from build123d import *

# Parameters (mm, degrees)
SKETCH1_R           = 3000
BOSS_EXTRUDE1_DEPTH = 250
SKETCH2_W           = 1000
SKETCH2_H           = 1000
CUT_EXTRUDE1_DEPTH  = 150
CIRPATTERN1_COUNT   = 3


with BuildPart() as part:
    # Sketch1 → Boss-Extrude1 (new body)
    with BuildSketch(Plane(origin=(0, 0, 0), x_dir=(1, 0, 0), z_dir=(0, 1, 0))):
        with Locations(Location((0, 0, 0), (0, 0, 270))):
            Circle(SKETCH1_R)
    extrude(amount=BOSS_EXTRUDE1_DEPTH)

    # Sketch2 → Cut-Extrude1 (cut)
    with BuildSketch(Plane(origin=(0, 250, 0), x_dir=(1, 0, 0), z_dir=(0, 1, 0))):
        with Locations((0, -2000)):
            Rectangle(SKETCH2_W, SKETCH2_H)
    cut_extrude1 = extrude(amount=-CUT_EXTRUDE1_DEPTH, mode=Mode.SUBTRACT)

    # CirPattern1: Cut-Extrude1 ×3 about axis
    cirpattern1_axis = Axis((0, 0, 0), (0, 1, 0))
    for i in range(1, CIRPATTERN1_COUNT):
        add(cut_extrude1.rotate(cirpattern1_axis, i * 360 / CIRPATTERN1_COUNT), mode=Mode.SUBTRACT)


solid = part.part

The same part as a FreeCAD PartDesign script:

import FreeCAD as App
import Part
import Sketcher
Q = App.Units.Quantity


def add_polygon(sketch, points):
    """Adds a closed chain of lines whose ends are joined by coincident constraints."""
    first, n = sketch.GeometryCount, len(points)
    for a, b in zip(points, points[1:] + points[:1]):
        sketch.addGeometry(Part.LineSegment(App.Vector(*a, 0), App.Vector(*b, 0)), False)
    for i in range(n):
        sketch.addConstraint(Sketcher.Constraint("Coincident", first + i, 2, first + (i + 1) % n, 1))

doc = App.newDocument("Part")
body = doc.addObject("PartDesign::Body", "Body")

sketch1 = doc.addObject("Sketcher::SketchObject", "Sketch")
body.addObject(sketch1)
sketch1.AttachmentSupport = (doc.XZ_Plane, [""])
sketch1.MapMode = "FlatFace"
sketch1.addGeometry(Part.Circle(App.Vector(0, 0, 0), App.Vector(0, 0, 1), 3000), False)
sketch1.addConstraint(Sketcher.Constraint("Coincident", 0, 3, -1, 1))
sketch1.addConstraint(Sketcher.Constraint("Diameter", 0, Q("6000 mm")))
pad1 = doc.addObject("PartDesign::Pad", "Pad")
body.addObject(pad1)
pad1.Profile = sketch1
pad1.Length = 250
pad1.Reversed = True

sketch2 = doc.addObject("Sketcher::SketchObject", "Sketch001")
body.addObject(sketch2)
sketch2.AttachmentSupport = (doc.XZ_Plane, [""])
sketch2.MapMode = "FlatFace"
sketch2.AttachmentOffset = App.Placement(App.Vector(0, 0, -250), App.Rotation())
add_polygon(sketch2, [(-500, 1500), (-500, 2500), (500, 2500), (500, 1500)])
sketch2.addConstraint(Sketcher.Constraint("Vertical", 0))
sketch2.addConstraint(Sketcher.Constraint("Horizontal", 1))
sketch2.addConstraint(Sketcher.Constraint("Vertical", 2))
sketch2.addConstraint(Sketcher.Constraint("Horizontal", 3))
sketch2.addConstraint(Sketcher.Constraint("Equal", 3, 0))
sketch2.addConstraint(Sketcher.Constraint("DistanceX", 1, 1, 1, 2, Q("1000 mm")))
sketch2.addConstraint(Sketcher.Constraint("DistanceX", 0, 2, -1, 1, Q("500 mm")))
sketch2.addConstraint(Sketcher.Constraint("DistanceY", -1, 1, 0, 2, Q("2500 mm")))
pocket1 = doc.addObject("PartDesign::Pocket", "Pocket")
body.addObject(pocket1)
pocket1.Profile = sketch2
pocket1.Length = 150
pocket1.Reversed = True
doc.recompute()

polarpattern = doc.addObject("PartDesign::PolarPattern", "PolarPattern")
body.addObject(polarpattern)
polarpattern.Originals = [pocket1]
polarpattern.Axis = (doc.Y_Axis, [""])
polarpattern.Angle = 360
polarpattern.Occurrences = 3
body.Tip = polarpattern

doc.recompute()
